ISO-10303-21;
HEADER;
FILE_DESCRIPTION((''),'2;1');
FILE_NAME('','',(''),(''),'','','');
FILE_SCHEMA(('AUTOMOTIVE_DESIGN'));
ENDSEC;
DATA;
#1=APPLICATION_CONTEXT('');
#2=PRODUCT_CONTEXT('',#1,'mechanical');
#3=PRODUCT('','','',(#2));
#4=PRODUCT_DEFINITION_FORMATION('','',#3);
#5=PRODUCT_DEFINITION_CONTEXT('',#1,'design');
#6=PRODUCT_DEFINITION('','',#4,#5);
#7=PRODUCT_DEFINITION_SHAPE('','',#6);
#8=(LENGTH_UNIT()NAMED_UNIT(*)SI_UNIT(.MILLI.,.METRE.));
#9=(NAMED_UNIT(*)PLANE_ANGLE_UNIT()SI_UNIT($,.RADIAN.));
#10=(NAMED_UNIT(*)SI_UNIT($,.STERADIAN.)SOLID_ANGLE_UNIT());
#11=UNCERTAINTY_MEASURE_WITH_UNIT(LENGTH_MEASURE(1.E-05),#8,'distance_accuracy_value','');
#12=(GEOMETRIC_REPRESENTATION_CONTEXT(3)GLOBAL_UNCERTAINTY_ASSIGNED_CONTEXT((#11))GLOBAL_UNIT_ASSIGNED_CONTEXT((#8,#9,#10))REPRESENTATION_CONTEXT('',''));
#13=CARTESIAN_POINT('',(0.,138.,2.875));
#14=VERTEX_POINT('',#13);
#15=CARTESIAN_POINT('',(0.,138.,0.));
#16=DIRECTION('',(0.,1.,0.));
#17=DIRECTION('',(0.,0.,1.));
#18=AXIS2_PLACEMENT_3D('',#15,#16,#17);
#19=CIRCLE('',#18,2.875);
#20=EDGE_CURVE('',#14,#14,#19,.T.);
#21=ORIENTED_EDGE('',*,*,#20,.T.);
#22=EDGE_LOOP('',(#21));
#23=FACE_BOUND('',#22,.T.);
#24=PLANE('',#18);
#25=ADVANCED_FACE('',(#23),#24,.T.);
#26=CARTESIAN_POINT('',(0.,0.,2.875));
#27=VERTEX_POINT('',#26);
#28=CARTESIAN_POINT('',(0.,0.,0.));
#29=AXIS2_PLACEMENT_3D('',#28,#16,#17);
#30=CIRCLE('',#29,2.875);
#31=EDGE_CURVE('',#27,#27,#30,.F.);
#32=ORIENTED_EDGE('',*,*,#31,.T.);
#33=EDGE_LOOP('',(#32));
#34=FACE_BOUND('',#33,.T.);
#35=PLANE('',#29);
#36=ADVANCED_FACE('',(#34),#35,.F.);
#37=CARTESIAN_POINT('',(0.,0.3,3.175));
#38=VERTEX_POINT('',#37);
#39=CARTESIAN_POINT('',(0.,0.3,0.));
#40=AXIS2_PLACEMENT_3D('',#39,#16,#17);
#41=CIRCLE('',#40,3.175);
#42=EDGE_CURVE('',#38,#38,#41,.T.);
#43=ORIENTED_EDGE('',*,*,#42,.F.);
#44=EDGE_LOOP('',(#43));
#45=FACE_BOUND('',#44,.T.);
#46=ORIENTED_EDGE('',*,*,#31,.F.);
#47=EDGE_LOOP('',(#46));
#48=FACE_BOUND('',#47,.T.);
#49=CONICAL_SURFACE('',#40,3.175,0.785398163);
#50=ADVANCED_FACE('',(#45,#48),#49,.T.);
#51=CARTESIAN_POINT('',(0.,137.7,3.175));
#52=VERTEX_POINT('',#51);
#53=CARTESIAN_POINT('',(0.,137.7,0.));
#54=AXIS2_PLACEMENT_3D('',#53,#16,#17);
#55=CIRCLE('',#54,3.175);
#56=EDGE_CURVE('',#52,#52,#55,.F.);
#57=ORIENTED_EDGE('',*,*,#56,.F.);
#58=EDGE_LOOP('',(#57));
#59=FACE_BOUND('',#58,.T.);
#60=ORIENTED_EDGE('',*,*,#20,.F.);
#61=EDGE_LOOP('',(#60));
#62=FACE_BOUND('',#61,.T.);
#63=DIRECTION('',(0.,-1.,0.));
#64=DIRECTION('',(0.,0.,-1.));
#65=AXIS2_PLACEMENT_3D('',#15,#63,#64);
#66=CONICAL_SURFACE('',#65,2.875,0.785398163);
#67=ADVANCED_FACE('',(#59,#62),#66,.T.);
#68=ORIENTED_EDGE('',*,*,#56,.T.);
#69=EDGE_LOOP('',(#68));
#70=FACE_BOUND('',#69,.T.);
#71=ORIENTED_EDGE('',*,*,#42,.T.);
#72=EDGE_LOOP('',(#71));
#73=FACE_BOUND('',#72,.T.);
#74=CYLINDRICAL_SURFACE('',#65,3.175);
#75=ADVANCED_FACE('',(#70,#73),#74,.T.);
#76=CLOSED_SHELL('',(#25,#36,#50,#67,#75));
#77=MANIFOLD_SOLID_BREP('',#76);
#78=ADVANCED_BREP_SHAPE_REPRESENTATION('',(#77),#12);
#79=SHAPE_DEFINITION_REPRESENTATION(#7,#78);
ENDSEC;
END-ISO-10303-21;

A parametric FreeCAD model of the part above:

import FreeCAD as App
import Part
import Sketcher
from FreeCAD import Vector


def edges_at(feature, points):
    """Names of the edges that pass closest to the given points."""
    edges = feature.Shape.Edges
    near = lambda p: min(range(len(edges)), key=lambda i: edges[i].distToShape(Part.Vertex(*p))[0])
    return sorted({f"Edge{near(p) + 1}" for p in points})

doc = App.newDocument("Part")
params = doc.addObject("Spreadsheet::Sheet", "Params")
for row, (alias, value) in enumerate([
    ("sketch1_diameter", "6.35 mm"),
    ("pad1_length", "138 mm"),
    ("chamfer_size", "0.3 mm"),
], start=1):
    params.set(f"A{row}", alias)
    params.set(f"B{row}", "=" + value)
    params.setAlias(f"B{row}", alias)

body = doc.addObject("PartDesign::Body", "Body")

# Sketch on XZ plane
sketch1 = body.newObject("Sketcher::SketchObject", "Sketch")
sketch1.AttachmentSupport = (doc.getObject("XZ_Plane"), [""])
sketch1.MapMode = "FlatFace"
sketch1.addGeometry(Part.Circle(Vector(0, 0, 0), Vector(0, 0, 1), 3.2), False)
sketch1.addConstraint(Sketcher.Constraint("Coincident", 0, 3, -1, 1))
sketch1.addConstraint(Sketcher.Constraint("Diameter", 0, 6.35))
sketch1.setExpression("Constraints[1]", "Params.sketch1_diameter")
pad1 = body.newObject("PartDesign::Pad", "Pad")
pad1.Profile = sketch1
pad1.setExpression("Length", "Params.pad1_length")
pad1.Reversed = True
doc.recompute()

chamfer = body.newObject("PartDesign::Chamfer", "Chamfer")
chamfer.Base = (pad1, edges_at(pad1, [(-3.175, 0, 0), (-3.175, 138, 0)]))
chamfer.setExpression("Size", "Params.chamfer_size")

doc.recompute()
